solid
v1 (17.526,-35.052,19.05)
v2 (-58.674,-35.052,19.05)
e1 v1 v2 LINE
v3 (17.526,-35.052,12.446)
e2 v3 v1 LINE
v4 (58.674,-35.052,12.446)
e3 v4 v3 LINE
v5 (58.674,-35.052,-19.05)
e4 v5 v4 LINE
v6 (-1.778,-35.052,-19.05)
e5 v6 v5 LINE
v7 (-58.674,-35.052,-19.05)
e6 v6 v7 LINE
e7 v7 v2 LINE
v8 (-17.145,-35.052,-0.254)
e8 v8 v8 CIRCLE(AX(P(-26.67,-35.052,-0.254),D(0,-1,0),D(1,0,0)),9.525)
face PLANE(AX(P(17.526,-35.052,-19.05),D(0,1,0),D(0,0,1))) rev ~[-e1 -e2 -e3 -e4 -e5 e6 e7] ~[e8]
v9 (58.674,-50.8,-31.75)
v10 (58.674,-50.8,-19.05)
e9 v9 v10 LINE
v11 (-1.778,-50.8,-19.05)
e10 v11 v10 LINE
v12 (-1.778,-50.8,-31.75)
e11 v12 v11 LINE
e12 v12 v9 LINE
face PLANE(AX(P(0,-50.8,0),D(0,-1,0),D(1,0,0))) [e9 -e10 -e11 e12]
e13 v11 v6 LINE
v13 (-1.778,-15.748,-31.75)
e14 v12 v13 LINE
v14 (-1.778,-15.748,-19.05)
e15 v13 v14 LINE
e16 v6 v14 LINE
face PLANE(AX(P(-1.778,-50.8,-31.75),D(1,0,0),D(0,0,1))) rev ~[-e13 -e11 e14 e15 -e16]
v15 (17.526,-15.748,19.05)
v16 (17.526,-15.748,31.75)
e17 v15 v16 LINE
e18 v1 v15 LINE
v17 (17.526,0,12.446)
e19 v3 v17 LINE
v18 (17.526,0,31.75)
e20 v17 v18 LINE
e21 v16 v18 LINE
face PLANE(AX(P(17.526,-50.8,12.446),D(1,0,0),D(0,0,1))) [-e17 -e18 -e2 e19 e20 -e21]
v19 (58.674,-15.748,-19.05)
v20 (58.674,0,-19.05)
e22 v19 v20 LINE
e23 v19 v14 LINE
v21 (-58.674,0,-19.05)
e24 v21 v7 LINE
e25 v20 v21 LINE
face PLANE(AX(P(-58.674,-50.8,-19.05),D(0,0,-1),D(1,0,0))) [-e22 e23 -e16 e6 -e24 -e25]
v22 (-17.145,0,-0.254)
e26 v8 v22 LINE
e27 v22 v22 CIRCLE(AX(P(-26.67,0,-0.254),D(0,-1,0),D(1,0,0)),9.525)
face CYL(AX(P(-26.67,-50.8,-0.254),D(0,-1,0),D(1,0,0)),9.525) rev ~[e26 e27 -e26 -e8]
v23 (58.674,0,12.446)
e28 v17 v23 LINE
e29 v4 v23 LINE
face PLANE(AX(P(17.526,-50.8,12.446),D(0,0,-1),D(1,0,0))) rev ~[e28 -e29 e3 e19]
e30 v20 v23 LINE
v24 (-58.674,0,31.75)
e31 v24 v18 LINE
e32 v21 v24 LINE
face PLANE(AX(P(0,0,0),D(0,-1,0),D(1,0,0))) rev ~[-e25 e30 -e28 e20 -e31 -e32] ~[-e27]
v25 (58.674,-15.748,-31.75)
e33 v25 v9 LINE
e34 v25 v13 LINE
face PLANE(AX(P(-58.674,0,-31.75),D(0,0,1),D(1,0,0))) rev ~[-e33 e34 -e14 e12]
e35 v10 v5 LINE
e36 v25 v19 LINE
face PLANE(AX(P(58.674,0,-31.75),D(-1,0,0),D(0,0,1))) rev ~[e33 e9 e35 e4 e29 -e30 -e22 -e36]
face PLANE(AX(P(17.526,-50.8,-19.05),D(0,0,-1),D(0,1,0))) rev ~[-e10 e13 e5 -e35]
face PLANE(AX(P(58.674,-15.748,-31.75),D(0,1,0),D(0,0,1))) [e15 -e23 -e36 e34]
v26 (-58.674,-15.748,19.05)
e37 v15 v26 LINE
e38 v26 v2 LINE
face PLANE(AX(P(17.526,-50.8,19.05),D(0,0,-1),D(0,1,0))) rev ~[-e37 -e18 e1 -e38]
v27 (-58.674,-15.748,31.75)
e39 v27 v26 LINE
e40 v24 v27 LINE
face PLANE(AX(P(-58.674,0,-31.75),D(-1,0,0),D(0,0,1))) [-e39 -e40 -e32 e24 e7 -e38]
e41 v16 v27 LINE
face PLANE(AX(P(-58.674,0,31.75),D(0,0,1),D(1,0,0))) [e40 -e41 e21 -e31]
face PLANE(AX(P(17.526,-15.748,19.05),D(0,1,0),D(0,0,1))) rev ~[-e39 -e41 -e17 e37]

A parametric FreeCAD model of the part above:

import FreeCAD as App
import Part
import Sketcher
from FreeCAD import Vector
Q = App.Units.Quantity

doc = App.newDocument("Part")
body = doc.addObject("PartDesign::Body", "Body")

# Sketch on XZ plane
sketch1 = body.newObject("Sketcher::SketchObject", "Sketch")
sketch1.AttachmentSupport = (doc.getObject("XZ_Plane"), [""])
sketch1.MapMode = "FlatFace"
sketch1.addGeometry([
    Part.LineSegment(Vector(-59, 32, 0), Vector(-59, -32, 0)),
    Part.LineSegment(Vector(-59, -32, 0), Vector(59, -32, 0)),
    Part.LineSegment(Vector(59, -32, 0), Vector(59, 32, 0)),
    Part.LineSegment(Vector(59, 32, 0), Vector(-59, 32, 0)),
], False)
sketch1.addConstraint([
    Sketcher.Constraint("Coincident", 0, 2, 1, 1),
    Sketcher.Constraint("Coincident", 1, 2, 2, 1),
    Sketcher.Constraint("Coincident", 2, 2, 3, 1),
    Sketcher.Constraint("Coincident", 3, 2, 0, 1),
    Sketcher.Constraint("Vertical", 0),
    Sketcher.Constraint("Horizontal", 1),
    Sketcher.Constraint("Vertical", 2),
    Sketcher.Constraint("Horizontal", 3),
    Sketcher.Constraint("Symmetric", 0, 2, 2, 2, -1, 1),
    Sketcher.Constraint("DistanceY", 0, 2, 0, 1, Q("2.5 in")),
    Sketcher.Constraint("DistanceX", 1, 1, 1, 2, Q("4.62 in")),
])
pad1 = body.newObject("PartDesign::Pad", "Pad")
pad1.Profile = sketch1
pad1.Length = Q("2 in")

# Sketch on XZ plane
sketch2 = body.newObject("Sketcher::SketchObject", "Sketch001")
sketch2.AttachmentSupport = (doc.getObject("XZ_Plane"), [""])
sketch2.MapMode = "FlatFace"
sketch2.AttachmentOffset = App.Placement(Vector(0, 0, 2 * 25.4), App.Rotation())
sketch2.addGeometry([
    Part.LineSegment(Vector(18, 32, 0), Vector(18, 12, 0)),
    Part.LineSegment(Vector(18, 12, 0), Vector(59, 12, 0)),
    Part.LineSegment(Vector(59, 12, 0), Vector(59, 32, 0)),
    Part.LineSegment(Vector(59, 32, 0), Vector(18, 32, 0)),
], False)
sketch2.addConstraint([
    Sketcher.Constraint("Coincident", 0, 2, 1, 1),
    Sketcher.Constraint("Coincident", 1, 2, 2, 1),
    Sketcher.Constraint("Coincident", 2, 2, 3, 1),
    Sketcher.Constraint("Coincident", 3, 2, 0, 1),
    Sketcher.Constraint("Vertical", 0),
    Sketcher.Constraint("Horizontal", 1),
    Sketcher.Constraint("Vertical", 2),
    Sketcher.Constraint("Horizontal", 3),
    Sketcher.Constraint("DistanceX", 1, 1, 1, 2, Q("1.62 in")),
    Sketcher.Constraint("DistanceY", 0, 2, 0, 1, Q("0.76 in")),
    Sketcher.Constraint("DistanceX", -1, 1, 0, 2, Q("0.69 in")),
    Sketcher.Constraint("DistanceY", -1, 1, 0, 2, Q("0.49 in")),
])
pocket1 = body.newObject("PartDesign::Pocket", "Pocket")
pocket1.Profile = sketch2
pocket1.Type = "ThroughAll"

# Sketch on XZ plane
sketch3 = body.newObject("Sketcher::SketchObject", "Sketch002")
sketch3.AttachmentSupport = (doc.getObject("XZ_Plane"), [""])
sketch3.MapMode = "FlatFace"
sketch3.AttachmentOffset = App.Placement(Vector(0, 0, 2 * 25.4), App.Rotation())
sketch3.addGeometry([
    Part.LineSegment(Vector(-59, -19, 0), Vector(-59, -32, 0)),
    Part.LineSegment(Vector(-59, -32, 0), Vector(-2, -32, 0)),
    Part.LineSegment(Vector(-2, -32, 0), Vector(-2, -19, 0)),
    Part.LineSegment(Vector(-2, -19, 0), Vector(-59, -19, 0)),
], False)
sketch3.addConstraint([
    Sketcher.Constraint("Coincident", 0, 2, 1, 1),
    Sketcher.Constraint("Coincident", 1, 2, 2, 1),
    Sketcher.Constraint("Coincident", 2, 2, 3, 1),
    Sketcher.Constraint("Coincident", 3, 2, 0, 1),
    Sketcher.Constraint("Vertical", 0),
    Sketcher.Constraint("Horizontal", 1),
    Sketcher.Constraint("Vertical", 2),
    Sketcher.Constraint("Horizontal", 3),
    Sketcher.Constraint("DistanceY", 0, 2, 0, 1, Q("0.5 in")),
    Sketcher.Constraint("DistanceX", 1, 1, 1, 2, Q("2.24 in")),
    Sketcher.Constraint("DistanceX", 0, 2, -1, 1, Q("2.31 in")),
    Sketcher.Constraint("DistanceY", 0, 2, -1, 1, Q("1.25 in")),
])
pocket2 = body.newObject("PartDesign::Pocket", "Pocket001")
pocket2.Profile = sketch3
pocket2.Type = "ThroughAll"

# Sketch on XZ plane
sketch4 = body.newObject("Sketcher::SketchObject", "Sketch003")
sketch4.AttachmentSupport = (doc.getObject("XZ_Plane"), [""])
sketch4.MapMode = "FlatFace"
sketch4.AttachmentOffset = App.Placement(Vector(0, 0, 2 * 25.4), App.Rotation())
sketch4.addGeometry(Part.Circle(Vector(-27, 0, 0), Vector(0, 0, 1), 10), False)
sketch4.addConstraint([
    Sketcher.Constraint("Diameter", 0, Q("0.75 in")),
    Sketcher.Constraint("DistanceX", 0, 3, -1, 1, Q("1.05 in")),
    Sketcher.Constraint("DistanceY", 0, 3, -1, 1, Q("0.01 in")),
])
pocket3 = body.newObject("PartDesign::Pocket", "Pocket002")
pocket3.Profile = sketch4
pocket3.Type = "ThroughAll"

# Sketch on YZ plane
sketch5 = body.newObject("Sketcher::SketchObject", "Sketch004")
sketch5.AttachmentSupport = (doc.getObject("YZ_Plane"), [""])
sketch5.MapMode = "FlatFace"
sketch5.AttachmentOffset = App.Placement(Vector(0, 0, 2.31 * 25.4), App.Rotation())
sketch5.addGeometry([
    Part.LineSegment(Vector(-16, -19, 0), Vector(-16, -32, 0)),
    Part.LineSegment(Vector(-16, -32, 0), Vector(0, -32, 0)),
    Part.LineSegment(Vector(0, -32, 0), Vector(0, -19, 0)),
    Part.LineSegment(Vector(0, -19, 0), Vector(-16, -19, 0)),
], False)
sketch5.addConstraint([
    Sketcher.Constraint("Coincident", 0, 2, 1, 1),
    Sketcher.Constraint("Coincident", 1, 2, 2, 1),
    Sketcher.Constraint("Coincident", 2, 2, 3, 1),
    Sketcher.Constraint("Coincident", 3, 2, 0, 1),
    Sketcher.Constraint("Vertical", 0),
    Sketcher.Constraint("Horizontal", 1),
    Sketcher.Constraint("Vertical", 2),
    Sketcher.Constraint("Horizontal", 3),
    Sketcher.Constraint("PointOnObject", 1, 2, -2),
    Sketcher.Constraint("DistanceY", 0, 2, 0, 1, Q("0.5 in")),
    Sketcher.Constraint("DistanceX", 1, 1, 1, 2, Q("0.62 in")),
    Sketcher.Constraint("DistanceY", 0, 2, -1, 1, Q("1.25 in")),
])
pocket4 = body.newObject("PartDesign::Pocket", "Pocket003")
pocket4.Profile = sketch5
pocket4.Type = "ThroughAll"

# Sketch on YZ plane
sketch6 = body.newObject("Sketcher::SketchObject", "Sketch005")
sketch6.AttachmentSupport = (doc.getObject("YZ_Plane"), [""])
sketch6.MapMode = "FlatFace"
sketch6.AttachmentOffset = App.Placement(Vector(0, 0, 0.69 * 25.4), App.Rotation())
sketch6.addGeometry([
    Part.LineSegment(Vector(-51, 32, 0), Vector(-51, 19, 0)),
    Part.LineSegment(Vector(-51, 19, 0), Vector(-16, 19, 0)),
    Part.LineSegment(Vector(-16, 19, 0), Vector(-16, 32, 0)),
    Part.LineSegment(Vector(-16, 32, 0), Vector(-51, 32, 0)),
], False)
sketch6.addConstraint([
    Sketcher.Constraint("Coincident", 0, 2, 1, 1),
    Sketcher.Constraint("Coincident", 1, 2, 2, 1),
    Sketcher.Constraint("Coincident", 2, 2, 3, 1),
    Sketcher.Constraint("Coincident", 3, 2, 0, 1),
    Sketcher.Constraint("Vertical", 0),
    Sketcher.Constraint("Horizontal", 1),
    Sketcher.Constraint("Vertical", 2),
    Sketcher.Constraint("Horizontal", 3),
    Sketcher.Constraint("DistanceY", 0, 2, 0, 1, Q("0.5 in")),
    Sketcher.Constraint("DistanceX", 0, 2, -1, 1, Q("2 in")),
    Sketcher.Constraint("DistanceX", 1, 1, 1, 2, Q("1.38 in")),
    Sketcher.Constraint("DistanceY", -1, 1, 0, 2, Q("0.75 in")),
])
pocket5 = body.newObject("PartDesign::Pocket", "Pocket004")
pocket5.Profile = sketch6
pocket5.Type = "ThroughAll"

# Sketch on YZ plane
sketch7 = body.newObject("Sketcher::SketchObject", "Sketch006")
sketch7.AttachmentSupport = (doc.getObject("YZ_Plane"), [""])
sketch7.MapMode = "FlatFace"
sketch7.AttachmentOffset = App.Placement(Vector(0, 0, 0.69 * 25.4), App.Rotation())
sketch7.addGeometry([
    Part.LineSegment(Vector(-51, 19, 0), Vector(-51, -19, 0)),
    Part.LineSegment(Vector(-51, -19, 0), Vector(-35, -19, 0)),
    Part.LineSegment(Vector(-35, -19, 0), Vector(-35, 19, 0)),
    Part.LineSegment(Vector(-35, 19, 0), Vector(-51, 19, 0)),
], False)
sketch7.addConstraint([
    Sketcher.Constraint("Coincident", 0, 2, 1, 1),
    Sketcher.Constraint("Coincident", 1, 2, 2, 1),
    Sketcher.Constraint("Coincident", 2, 2, 3, 1),
    Sketcher.Constraint("Coincident", 3, 2, 0, 1),
    Sketcher.Constraint("Vertical", 0),
    Sketcher.Constraint("Horizontal", 1),
    Sketcher.Constraint("Vertical", 2),
    Sketcher.Constraint("Horizontal", 3),
    Sketcher.Constraint("DistanceY", 0, 2, 0, 1, Q("1.5 in")),
    Sketcher.Constraint("DistanceX", 0, 2, -1, 1, Q("2 in")),
    Sketcher.Constraint("DistanceX", 1, 1, 1, 2, Q("0.62 in")),
    Sketcher.Constraint("DistanceY", 0, 2, -1, 1, Q("0.75 in")),
])
pocket6 = body.newObject("PartDesign::Pocket", "Pocket005")
pocket6.Profile = sketch7
pocket6.Type = "ThroughAll"

# Sketch on YZ plane
sketch8 = body.newObject("Sketcher::SketchObject", "Sketch007")
sketch8.AttachmentSupport = (doc.getObject("YZ_Plane"), [""])
sketch8.MapMode = "FlatFace"
sketch8.AttachmentOffset = App.Placement(Vector(0, 0, 2.31 * 25.4), App.Rotation())
sketch8.addGeometry([
    Part.LineSegment(Vector(-51, 12, 0), Vector(-51, -19, 0)),
    Part.LineSegment(Vector(-51, -19, 0), Vector(-35, -19, 0)),
    Part.LineSegment(Vector(-35, -19, 0), Vector(-35, 12, 0)),
    Part.LineSegment(Vector(-35, 12, 0), Vector(-51, 12, 0)),
], False)
sketch8.addConstraint([
    Sketcher.Constraint("Coincident", 0, 2, 1, 1),
    Sketcher.Constraint("Coincident", 1, 2, 2, 1),
    Sketcher.Constraint("Coincident", 2, 2, 3, 1),
    Sketcher.Constraint("Coincident", 3, 2, 0, 1),
    Sketcher.Constraint("Vertical", 0),
    Sketcher.Constraint("Horizontal", 1),
    Sketcher.Constraint("Vertical", 2),
    Sketcher.Constraint("Horizontal", 3),
    Sketcher.Constraint("DistanceX", 0, 2, -1, 1, Q("2 in")),
    Sketcher.Constraint("DistanceX", 1, 1, 1, 2, Q("0.62 in")),
    Sketcher.Constraint("DistanceY", 0, 2, 0, 1, Q("1.24 in")),
    Sketcher.Constraint("DistanceY", 0, 2, -1, 1, Q("0.75 in")),
])
pocket7 = body.newObject("PartDesign::Pocket", "Pocket006")
pocket7.Profile = sketch8
pocket7.Type = "ThroughAll"

doc.recompute()
